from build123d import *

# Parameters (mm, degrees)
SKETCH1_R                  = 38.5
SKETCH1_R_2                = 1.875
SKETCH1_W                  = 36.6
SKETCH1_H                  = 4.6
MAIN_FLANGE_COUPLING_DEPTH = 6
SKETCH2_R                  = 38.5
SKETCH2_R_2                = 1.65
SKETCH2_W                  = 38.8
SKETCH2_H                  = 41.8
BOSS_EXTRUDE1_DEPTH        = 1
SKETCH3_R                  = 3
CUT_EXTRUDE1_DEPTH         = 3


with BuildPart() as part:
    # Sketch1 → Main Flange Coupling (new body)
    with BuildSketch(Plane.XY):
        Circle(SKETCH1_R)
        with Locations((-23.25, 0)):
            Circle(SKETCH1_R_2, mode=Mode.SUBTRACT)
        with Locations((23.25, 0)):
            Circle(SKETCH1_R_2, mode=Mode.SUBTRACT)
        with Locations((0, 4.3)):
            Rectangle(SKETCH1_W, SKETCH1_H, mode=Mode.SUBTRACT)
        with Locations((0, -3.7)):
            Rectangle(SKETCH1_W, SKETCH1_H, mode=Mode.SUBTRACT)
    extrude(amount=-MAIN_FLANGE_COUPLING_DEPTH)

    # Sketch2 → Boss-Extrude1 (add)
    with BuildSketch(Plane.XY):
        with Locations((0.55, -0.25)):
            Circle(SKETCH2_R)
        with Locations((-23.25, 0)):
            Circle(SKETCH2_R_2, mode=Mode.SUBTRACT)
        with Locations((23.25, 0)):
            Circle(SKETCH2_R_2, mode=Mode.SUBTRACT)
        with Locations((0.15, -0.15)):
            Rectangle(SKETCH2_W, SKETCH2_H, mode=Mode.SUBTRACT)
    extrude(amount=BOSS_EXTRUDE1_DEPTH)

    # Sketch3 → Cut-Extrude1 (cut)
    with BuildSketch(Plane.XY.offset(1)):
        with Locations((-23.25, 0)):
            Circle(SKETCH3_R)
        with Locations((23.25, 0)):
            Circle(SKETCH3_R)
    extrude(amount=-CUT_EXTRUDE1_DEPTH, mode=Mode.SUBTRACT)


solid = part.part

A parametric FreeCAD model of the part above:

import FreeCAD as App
import Part
import Sketcher

V = App.Vector

doc = App.newDocument("Part")
body = doc.addObject("PartDesign::Body", "Body")

# Sketch on XY plane
sketch1 = doc.addObject("Sketcher::SketchObject", "Sketch")
body.addObject(sketch1)
sketch1.AttachmentSupport = (doc.XY_Plane, [""])
sketch1.MapMode = "FlatFace"
sketch1.addGeometry(Part.Circle(V(0, 0, 0), V(0, 0, 1), 38.5), False)
sketch1.addGeometry(Part.Circle(V(-23.2, 0, 0), V(0, 0, 1), 1.9), False)
sketch1.addGeometry(Part.LineSegment(V(18.3, -6, 0), V(-18.3, -6, 0)), False)
sketch1.addGeometry(Part.LineSegment(V(-18.3, -6, 0), V(-18.3, -1.4, 0)), False)
sketch1.addGeometry(Part.LineSegment(V(-18.3, -1.4, 0), V(18.3, -1.4, 0)), False)
sketch1.addGeometry(Part.LineSegment(V(18.3, -1.4, 0), V(18.3, -6, 0)), False)
sketch1.addGeometry(Part.Circle(V(23.2, 0, 0), V(0, 0, 1), 1.9), False)
sketch1.addGeometry(Part.LineSegment(V(18.3, 2, 0), V(-18.3, 2, 0)), False)
sketch1.addGeometry(Part.LineSegment(V(-18.3, 2, 0), V(-18.3, 6.6, 0)), False)
sketch1.addGeometry(Part.LineSegment(V(-18.3, 6.6, 0), V(18.3, 6.6, 0)), False)
sketch1.addGeometry(Part.LineSegment(V(18.3, 6.6, 0), V(18.3, 2, 0)), False)
sketch1.addConstraint(Sketcher.Constraint("Coincident", 2, 2, 3, 1))
sketch1.addConstraint(Sketcher.Constraint("Coincident", 3, 2, 4, 1))
sketch1.addConstraint(Sketcher.Constraint("Coincident", 4, 2, 5, 1))
sketch1.addConstraint(Sketcher.Constraint("Coincident", 5, 2, 2, 1))
sketch1.addConstraint(Sketcher.Constraint("Coincident", 7, 2, 8, 1))
sketch1.addConstraint(Sketcher.Constraint("Coincident", 8, 2, 9, 1))
sketch1.addConstraint(Sketcher.Constraint("Coincident", 9, 2, 10, 1))
sketch1.addConstraint(Sketcher.Constraint("Coincident", 10, 2, 7, 1))
sketch1.addConstraint(Sketcher.Constraint("Horizontal", 2))
sketch1.addConstraint(Sketcher.Constraint("Vertical", 3))
sketch1.addConstraint(Sketcher.Constraint("Horizontal", 4))
sketch1.addConstraint(Sketcher.Constraint("Vertical", 5))
sketch1.addConstraint(Sketcher.Constraint("Horizontal", 7))
sketch1.addConstraint(Sketcher.Constraint("Vertical", 8))
sketch1.addConstraint(Sketcher.Constraint("Horizontal", 9))
sketch1.addConstraint(Sketcher.Constraint("Vertical", 10))
sketch1.addConstraint(Sketcher.Constraint("Coincident", 0, 3, -1, 1))
sketch1.addConstraint(Sketcher.Constraint("Equal", 1, 6))
sketch1.addConstraint(Sketcher.Constraint("Symmetric", 1, 3, 6, 3, -1, 1))
sketch1.addConstraint(Sketcher.Constraint("PointOnObject", 1, 3, -1))
sketch1.addConstraint(Sketcher.Constraint("Vertical", 3, 2, 7, 2))
sketch1.addConstraint(Sketcher.Constraint("Vertical", 5, 2, 9, 2))
sketch1.addConstraint(Sketcher.Constraint("Equal", 5, 8))
sketch1.addConstraint(Sketcher.Constraint("Diameter", 0, 77.0))
sketch1.addConstraint(Sketcher.Constraint("Diameter", 1, 3.75))
sketch1.addConstraint(Sketcher.Constraint("DistanceX", 2, 2, 2, 1, 36.6))
sketch1.addConstraint(Sketcher.Constraint("DistanceY", 3, 1, 3, 2, 4.6))
sketch1.addConstraint(Sketcher.Constraint("DistanceY", 2, 2, -1, 1, 6.0))
sketch1.addConstraint(Sketcher.Constraint("DistanceY", -1, 1, 7, 2, 2.0))
sketch1.addConstraint(Sketcher.Constraint("DistanceX", 2, 2, -1, 1, 18.3))
sketch1.addConstraint(Sketcher.Constraint("DistanceX", 1, 3, 6, 3, 46.5))
pad1 = doc.addObject("PartDesign::Pad", "Pad")
body.addObject(pad1)
pad1.Profile = sketch1
pad1.Length = 6
pad1.Reversed = True

# Sketch on XY plane
sketch2 = doc.addObject("Sketcher::SketchObject", "Sketch001")
body.addObject(sketch2)
sketch2.AttachmentSupport = (doc.XY_Plane, [""])
sketch2.MapMode = "FlatFace"
sketch2.addGeometry(Part.Circle(V(0.6, -0.2, 0), V(0, 0, 1), 38.5), False)
sketch2.addGeometry(Part.LineSegment(V(19.6, -21.1, 0), V(-19.2, -21.1, 0)), False)
sketch2.addGeometry(Part.LineSegment(V(-19.2, -21.1, 0), V(-19.2, 20.8, 0)), False)
sketch2.addGeometry(Part.LineSegment(V(-19.2, 20.8, 0), V(19.6, 20.8, 0)), False)
sketch2.addGeometry(Part.LineSegment(V(19.6, 20.8, 0), V(19.6, -21.1, 0)), False)
sketch2.addGeometry(Part.Circle(V(-23.2, 0, 0), V(0, 0, 1), 1.6), False)
sketch2.addGeometry(Part.Circle(V(23.2, 0, 0), V(0, 0, 1), 1.6), False)
sketch2.addConstraint(Sketcher.Constraint("Coincident", 1, 2, 2, 1))
sketch2.addConstraint(Sketcher.Constraint("Coincident", 2, 2, 3, 1))
sketch2.addConstraint(Sketcher.Constraint("Coincident", 3, 2, 4, 1))
sketch2.addConstraint(Sketcher.Constraint("Coincident", 4, 2, 1, 1))
sketch2.addConstraint(Sketcher.Constraint("Horizontal", 1))
sketch2.addConstraint(Sketcher.Constraint("Vertical", 2))
sketch2.addConstraint(Sketcher.Constraint("Horizontal", 3))
sketch2.addConstraint(Sketcher.Constraint("Vertical", 4))
sketch2.addConstraint(Sketcher.Constraint("Equal", 5, 6))
sketch2.addConstraint(Sketcher.Constraint("Symmetric", 5, 3, 6, 3, -1, 1))
sketch2.addConstraint(Sketcher.Constraint("PointOnObject", 5, 3, -1))
sketch2.addConstraint(Sketcher.Constraint("Diameter", 0, 77.0))
sketch2.addConstraint(Sketcher.Constraint("Diameter", 5, 3.3))
sketch2.addConstraint(Sketcher.Constraint("DistanceX", 1, 2, 1, 1, 38.8))
sketch2.addConstraint(Sketcher.Constraint("DistanceY", 2, 1, 2, 2, 41.8))
sketch2.addConstraint(Sketcher.Constraint("DistanceX", 5, 3, 1, 2, 4.0))
sketch2.addConstraint(Sketcher.Constraint("DistanceY", 0, 3, 2, 2, 21.0))
sketch2.addConstraint(Sketcher.Constraint("DistanceX", 0, 3, 3, 2, 19.0))
sketch2.addConstraint(Sketcher.Constraint("DistanceX", 0, 3, 6, 3, 22.7))
sketch2.addConstraint(Sketcher.Constraint("DistanceY", 0, 3, -1, 1, 0.25))
pad2 = doc.addObject("PartDesign::Pad", "Pad001")
body.addObject(pad2)
pad2.Profile = sketch2
pad2.Length = 1

# Sketch on XY plane
sketch3 = doc.addObject("Sketcher::SketchObject", "Sketch002")
body.addObject(sketch3)
sketch3.AttachmentSupport = (doc.XY_Plane, [""])
sketch3.MapMode = "FlatFace"
sketch3.AttachmentOffset = App.Placement(V(0, 0, 1), App.Rotation())
sketch3.addGeometry(Part.Circle(V(-23.2, 0, 0), V(0, 0, 1), 3), False)
sketch3.addGeometry(Part.Circle(V(23.2, 0, 0), V(0, 0, 1), 3), False)
sketch3.addConstraint(Sketcher.Constraint("Equal", 0, 1))
sketch3.addConstraint(Sketcher.Constraint("Symmetric", 0, 3, 1, 3, -1, 1))
sketch3.addConstraint(Sketcher.Constraint("PointOnObject", 0, 3, -1))
sketch3.addConstraint(Sketcher.Constraint("Diameter", 0, 6.0))
sketch3.addConstraint(Sketcher.Constraint("DistanceX", 0, 3, 1, 3, 46.5))
pocket1 = doc.addObject("PartDesign::Pocket", "Pocket")
body.addObject(pocket1)
pocket1.Profile = sketch3
pocket1.Length = 3

doc.recompute()
